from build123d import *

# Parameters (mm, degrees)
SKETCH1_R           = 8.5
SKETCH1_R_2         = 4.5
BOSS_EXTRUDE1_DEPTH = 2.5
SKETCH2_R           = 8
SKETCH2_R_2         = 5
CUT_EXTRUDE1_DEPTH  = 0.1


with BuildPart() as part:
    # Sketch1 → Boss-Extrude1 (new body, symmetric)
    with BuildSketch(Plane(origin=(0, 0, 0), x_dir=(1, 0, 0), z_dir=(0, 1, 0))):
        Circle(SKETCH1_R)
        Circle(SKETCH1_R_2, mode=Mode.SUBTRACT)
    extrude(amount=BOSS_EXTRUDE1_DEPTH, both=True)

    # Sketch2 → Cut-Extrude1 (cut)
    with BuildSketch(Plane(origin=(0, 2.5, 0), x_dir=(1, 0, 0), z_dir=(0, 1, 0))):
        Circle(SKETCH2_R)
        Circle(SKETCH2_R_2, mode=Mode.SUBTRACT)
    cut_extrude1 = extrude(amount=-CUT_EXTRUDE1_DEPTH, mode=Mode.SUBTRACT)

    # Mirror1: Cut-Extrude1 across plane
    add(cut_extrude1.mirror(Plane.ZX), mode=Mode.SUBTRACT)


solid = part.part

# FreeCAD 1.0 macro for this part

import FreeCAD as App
import Part
import Sketcher
from FreeCAD import Vector

doc = App.newDocument("Part")
body = doc.addObject("PartDesign::Body", "Body")

sketch1 = body.newObject("Sketcher::SketchObject", "Sketch")
sketch1.AttachmentSupport = (doc.getObject("XZ_Plane"), [""])
sketch1.MapMode = "FlatFace"
sketch1.addGeometry([
    Part.Circle(Vector(0, 0, 0), Vector(0, 0, 1), 8.5),
    Part.Circle(Vector(0, 0, 0), Vector(0, 0, 1), 4.5),
], False)
sketch1.addConstraint([
    Sketcher.Constraint("Coincident", 0, 3, -1, 1),
    Sketcher.Constraint("Coincident", 1, 3, -1, 1),
    Sketcher.Constraint("Diameter", 0, 17.0),
    Sketcher.Constraint("Diameter", 1, 9.0),
])
pad1 = body.newObject("PartDesign::Pad", "Pad")
pad1.Profile = sketch1
pad1.Length = 5
pad1.Midplane = True

sketch2 = body.newObject("Sketcher::SketchObject", "Sketch001")
sketch2.AttachmentSupport = (doc.getObject("XZ_Plane"), [""])
sketch2.MapMode = "FlatFace"
sketch2.AttachmentOffset = App.Placement(Vector(0, 0, -2.5), App.Rotation())
sketch2.addGeometry([
    Part.Circle(Vector(0, 0, 0), Vector(0, 0, 1), 8),
    Part.Circle(Vector(0, 0, 0), Vector(0, 0, 1), 5),
], False)
sketch2.addConstraint([
    Sketcher.Constraint("Coincident", 0, 3, -1, 1),
    Sketcher.Constraint("Coincident", 1, 3, -1, 1),
    Sketcher.Constraint("Diameter", 0, 16.0),
    Sketcher.Constraint("Diameter", 1, 10.0),
])
pocket1 = body.newObject("PartDesign::Pocket", "Pocket")
pocket1.Profile = sketch2
pocket1.Length = 0.1
pocket1.Reversed = True
doc.recompute()

mirrored = body.newObject("PartDesign::Mirrored", "Mirrored")
mirrored.Originals = [pocket1]
mirrored.MirrorPlane = (doc.getObject("XZ_Plane"), [""])
body.Tip = mirrored

doc.recompute()
